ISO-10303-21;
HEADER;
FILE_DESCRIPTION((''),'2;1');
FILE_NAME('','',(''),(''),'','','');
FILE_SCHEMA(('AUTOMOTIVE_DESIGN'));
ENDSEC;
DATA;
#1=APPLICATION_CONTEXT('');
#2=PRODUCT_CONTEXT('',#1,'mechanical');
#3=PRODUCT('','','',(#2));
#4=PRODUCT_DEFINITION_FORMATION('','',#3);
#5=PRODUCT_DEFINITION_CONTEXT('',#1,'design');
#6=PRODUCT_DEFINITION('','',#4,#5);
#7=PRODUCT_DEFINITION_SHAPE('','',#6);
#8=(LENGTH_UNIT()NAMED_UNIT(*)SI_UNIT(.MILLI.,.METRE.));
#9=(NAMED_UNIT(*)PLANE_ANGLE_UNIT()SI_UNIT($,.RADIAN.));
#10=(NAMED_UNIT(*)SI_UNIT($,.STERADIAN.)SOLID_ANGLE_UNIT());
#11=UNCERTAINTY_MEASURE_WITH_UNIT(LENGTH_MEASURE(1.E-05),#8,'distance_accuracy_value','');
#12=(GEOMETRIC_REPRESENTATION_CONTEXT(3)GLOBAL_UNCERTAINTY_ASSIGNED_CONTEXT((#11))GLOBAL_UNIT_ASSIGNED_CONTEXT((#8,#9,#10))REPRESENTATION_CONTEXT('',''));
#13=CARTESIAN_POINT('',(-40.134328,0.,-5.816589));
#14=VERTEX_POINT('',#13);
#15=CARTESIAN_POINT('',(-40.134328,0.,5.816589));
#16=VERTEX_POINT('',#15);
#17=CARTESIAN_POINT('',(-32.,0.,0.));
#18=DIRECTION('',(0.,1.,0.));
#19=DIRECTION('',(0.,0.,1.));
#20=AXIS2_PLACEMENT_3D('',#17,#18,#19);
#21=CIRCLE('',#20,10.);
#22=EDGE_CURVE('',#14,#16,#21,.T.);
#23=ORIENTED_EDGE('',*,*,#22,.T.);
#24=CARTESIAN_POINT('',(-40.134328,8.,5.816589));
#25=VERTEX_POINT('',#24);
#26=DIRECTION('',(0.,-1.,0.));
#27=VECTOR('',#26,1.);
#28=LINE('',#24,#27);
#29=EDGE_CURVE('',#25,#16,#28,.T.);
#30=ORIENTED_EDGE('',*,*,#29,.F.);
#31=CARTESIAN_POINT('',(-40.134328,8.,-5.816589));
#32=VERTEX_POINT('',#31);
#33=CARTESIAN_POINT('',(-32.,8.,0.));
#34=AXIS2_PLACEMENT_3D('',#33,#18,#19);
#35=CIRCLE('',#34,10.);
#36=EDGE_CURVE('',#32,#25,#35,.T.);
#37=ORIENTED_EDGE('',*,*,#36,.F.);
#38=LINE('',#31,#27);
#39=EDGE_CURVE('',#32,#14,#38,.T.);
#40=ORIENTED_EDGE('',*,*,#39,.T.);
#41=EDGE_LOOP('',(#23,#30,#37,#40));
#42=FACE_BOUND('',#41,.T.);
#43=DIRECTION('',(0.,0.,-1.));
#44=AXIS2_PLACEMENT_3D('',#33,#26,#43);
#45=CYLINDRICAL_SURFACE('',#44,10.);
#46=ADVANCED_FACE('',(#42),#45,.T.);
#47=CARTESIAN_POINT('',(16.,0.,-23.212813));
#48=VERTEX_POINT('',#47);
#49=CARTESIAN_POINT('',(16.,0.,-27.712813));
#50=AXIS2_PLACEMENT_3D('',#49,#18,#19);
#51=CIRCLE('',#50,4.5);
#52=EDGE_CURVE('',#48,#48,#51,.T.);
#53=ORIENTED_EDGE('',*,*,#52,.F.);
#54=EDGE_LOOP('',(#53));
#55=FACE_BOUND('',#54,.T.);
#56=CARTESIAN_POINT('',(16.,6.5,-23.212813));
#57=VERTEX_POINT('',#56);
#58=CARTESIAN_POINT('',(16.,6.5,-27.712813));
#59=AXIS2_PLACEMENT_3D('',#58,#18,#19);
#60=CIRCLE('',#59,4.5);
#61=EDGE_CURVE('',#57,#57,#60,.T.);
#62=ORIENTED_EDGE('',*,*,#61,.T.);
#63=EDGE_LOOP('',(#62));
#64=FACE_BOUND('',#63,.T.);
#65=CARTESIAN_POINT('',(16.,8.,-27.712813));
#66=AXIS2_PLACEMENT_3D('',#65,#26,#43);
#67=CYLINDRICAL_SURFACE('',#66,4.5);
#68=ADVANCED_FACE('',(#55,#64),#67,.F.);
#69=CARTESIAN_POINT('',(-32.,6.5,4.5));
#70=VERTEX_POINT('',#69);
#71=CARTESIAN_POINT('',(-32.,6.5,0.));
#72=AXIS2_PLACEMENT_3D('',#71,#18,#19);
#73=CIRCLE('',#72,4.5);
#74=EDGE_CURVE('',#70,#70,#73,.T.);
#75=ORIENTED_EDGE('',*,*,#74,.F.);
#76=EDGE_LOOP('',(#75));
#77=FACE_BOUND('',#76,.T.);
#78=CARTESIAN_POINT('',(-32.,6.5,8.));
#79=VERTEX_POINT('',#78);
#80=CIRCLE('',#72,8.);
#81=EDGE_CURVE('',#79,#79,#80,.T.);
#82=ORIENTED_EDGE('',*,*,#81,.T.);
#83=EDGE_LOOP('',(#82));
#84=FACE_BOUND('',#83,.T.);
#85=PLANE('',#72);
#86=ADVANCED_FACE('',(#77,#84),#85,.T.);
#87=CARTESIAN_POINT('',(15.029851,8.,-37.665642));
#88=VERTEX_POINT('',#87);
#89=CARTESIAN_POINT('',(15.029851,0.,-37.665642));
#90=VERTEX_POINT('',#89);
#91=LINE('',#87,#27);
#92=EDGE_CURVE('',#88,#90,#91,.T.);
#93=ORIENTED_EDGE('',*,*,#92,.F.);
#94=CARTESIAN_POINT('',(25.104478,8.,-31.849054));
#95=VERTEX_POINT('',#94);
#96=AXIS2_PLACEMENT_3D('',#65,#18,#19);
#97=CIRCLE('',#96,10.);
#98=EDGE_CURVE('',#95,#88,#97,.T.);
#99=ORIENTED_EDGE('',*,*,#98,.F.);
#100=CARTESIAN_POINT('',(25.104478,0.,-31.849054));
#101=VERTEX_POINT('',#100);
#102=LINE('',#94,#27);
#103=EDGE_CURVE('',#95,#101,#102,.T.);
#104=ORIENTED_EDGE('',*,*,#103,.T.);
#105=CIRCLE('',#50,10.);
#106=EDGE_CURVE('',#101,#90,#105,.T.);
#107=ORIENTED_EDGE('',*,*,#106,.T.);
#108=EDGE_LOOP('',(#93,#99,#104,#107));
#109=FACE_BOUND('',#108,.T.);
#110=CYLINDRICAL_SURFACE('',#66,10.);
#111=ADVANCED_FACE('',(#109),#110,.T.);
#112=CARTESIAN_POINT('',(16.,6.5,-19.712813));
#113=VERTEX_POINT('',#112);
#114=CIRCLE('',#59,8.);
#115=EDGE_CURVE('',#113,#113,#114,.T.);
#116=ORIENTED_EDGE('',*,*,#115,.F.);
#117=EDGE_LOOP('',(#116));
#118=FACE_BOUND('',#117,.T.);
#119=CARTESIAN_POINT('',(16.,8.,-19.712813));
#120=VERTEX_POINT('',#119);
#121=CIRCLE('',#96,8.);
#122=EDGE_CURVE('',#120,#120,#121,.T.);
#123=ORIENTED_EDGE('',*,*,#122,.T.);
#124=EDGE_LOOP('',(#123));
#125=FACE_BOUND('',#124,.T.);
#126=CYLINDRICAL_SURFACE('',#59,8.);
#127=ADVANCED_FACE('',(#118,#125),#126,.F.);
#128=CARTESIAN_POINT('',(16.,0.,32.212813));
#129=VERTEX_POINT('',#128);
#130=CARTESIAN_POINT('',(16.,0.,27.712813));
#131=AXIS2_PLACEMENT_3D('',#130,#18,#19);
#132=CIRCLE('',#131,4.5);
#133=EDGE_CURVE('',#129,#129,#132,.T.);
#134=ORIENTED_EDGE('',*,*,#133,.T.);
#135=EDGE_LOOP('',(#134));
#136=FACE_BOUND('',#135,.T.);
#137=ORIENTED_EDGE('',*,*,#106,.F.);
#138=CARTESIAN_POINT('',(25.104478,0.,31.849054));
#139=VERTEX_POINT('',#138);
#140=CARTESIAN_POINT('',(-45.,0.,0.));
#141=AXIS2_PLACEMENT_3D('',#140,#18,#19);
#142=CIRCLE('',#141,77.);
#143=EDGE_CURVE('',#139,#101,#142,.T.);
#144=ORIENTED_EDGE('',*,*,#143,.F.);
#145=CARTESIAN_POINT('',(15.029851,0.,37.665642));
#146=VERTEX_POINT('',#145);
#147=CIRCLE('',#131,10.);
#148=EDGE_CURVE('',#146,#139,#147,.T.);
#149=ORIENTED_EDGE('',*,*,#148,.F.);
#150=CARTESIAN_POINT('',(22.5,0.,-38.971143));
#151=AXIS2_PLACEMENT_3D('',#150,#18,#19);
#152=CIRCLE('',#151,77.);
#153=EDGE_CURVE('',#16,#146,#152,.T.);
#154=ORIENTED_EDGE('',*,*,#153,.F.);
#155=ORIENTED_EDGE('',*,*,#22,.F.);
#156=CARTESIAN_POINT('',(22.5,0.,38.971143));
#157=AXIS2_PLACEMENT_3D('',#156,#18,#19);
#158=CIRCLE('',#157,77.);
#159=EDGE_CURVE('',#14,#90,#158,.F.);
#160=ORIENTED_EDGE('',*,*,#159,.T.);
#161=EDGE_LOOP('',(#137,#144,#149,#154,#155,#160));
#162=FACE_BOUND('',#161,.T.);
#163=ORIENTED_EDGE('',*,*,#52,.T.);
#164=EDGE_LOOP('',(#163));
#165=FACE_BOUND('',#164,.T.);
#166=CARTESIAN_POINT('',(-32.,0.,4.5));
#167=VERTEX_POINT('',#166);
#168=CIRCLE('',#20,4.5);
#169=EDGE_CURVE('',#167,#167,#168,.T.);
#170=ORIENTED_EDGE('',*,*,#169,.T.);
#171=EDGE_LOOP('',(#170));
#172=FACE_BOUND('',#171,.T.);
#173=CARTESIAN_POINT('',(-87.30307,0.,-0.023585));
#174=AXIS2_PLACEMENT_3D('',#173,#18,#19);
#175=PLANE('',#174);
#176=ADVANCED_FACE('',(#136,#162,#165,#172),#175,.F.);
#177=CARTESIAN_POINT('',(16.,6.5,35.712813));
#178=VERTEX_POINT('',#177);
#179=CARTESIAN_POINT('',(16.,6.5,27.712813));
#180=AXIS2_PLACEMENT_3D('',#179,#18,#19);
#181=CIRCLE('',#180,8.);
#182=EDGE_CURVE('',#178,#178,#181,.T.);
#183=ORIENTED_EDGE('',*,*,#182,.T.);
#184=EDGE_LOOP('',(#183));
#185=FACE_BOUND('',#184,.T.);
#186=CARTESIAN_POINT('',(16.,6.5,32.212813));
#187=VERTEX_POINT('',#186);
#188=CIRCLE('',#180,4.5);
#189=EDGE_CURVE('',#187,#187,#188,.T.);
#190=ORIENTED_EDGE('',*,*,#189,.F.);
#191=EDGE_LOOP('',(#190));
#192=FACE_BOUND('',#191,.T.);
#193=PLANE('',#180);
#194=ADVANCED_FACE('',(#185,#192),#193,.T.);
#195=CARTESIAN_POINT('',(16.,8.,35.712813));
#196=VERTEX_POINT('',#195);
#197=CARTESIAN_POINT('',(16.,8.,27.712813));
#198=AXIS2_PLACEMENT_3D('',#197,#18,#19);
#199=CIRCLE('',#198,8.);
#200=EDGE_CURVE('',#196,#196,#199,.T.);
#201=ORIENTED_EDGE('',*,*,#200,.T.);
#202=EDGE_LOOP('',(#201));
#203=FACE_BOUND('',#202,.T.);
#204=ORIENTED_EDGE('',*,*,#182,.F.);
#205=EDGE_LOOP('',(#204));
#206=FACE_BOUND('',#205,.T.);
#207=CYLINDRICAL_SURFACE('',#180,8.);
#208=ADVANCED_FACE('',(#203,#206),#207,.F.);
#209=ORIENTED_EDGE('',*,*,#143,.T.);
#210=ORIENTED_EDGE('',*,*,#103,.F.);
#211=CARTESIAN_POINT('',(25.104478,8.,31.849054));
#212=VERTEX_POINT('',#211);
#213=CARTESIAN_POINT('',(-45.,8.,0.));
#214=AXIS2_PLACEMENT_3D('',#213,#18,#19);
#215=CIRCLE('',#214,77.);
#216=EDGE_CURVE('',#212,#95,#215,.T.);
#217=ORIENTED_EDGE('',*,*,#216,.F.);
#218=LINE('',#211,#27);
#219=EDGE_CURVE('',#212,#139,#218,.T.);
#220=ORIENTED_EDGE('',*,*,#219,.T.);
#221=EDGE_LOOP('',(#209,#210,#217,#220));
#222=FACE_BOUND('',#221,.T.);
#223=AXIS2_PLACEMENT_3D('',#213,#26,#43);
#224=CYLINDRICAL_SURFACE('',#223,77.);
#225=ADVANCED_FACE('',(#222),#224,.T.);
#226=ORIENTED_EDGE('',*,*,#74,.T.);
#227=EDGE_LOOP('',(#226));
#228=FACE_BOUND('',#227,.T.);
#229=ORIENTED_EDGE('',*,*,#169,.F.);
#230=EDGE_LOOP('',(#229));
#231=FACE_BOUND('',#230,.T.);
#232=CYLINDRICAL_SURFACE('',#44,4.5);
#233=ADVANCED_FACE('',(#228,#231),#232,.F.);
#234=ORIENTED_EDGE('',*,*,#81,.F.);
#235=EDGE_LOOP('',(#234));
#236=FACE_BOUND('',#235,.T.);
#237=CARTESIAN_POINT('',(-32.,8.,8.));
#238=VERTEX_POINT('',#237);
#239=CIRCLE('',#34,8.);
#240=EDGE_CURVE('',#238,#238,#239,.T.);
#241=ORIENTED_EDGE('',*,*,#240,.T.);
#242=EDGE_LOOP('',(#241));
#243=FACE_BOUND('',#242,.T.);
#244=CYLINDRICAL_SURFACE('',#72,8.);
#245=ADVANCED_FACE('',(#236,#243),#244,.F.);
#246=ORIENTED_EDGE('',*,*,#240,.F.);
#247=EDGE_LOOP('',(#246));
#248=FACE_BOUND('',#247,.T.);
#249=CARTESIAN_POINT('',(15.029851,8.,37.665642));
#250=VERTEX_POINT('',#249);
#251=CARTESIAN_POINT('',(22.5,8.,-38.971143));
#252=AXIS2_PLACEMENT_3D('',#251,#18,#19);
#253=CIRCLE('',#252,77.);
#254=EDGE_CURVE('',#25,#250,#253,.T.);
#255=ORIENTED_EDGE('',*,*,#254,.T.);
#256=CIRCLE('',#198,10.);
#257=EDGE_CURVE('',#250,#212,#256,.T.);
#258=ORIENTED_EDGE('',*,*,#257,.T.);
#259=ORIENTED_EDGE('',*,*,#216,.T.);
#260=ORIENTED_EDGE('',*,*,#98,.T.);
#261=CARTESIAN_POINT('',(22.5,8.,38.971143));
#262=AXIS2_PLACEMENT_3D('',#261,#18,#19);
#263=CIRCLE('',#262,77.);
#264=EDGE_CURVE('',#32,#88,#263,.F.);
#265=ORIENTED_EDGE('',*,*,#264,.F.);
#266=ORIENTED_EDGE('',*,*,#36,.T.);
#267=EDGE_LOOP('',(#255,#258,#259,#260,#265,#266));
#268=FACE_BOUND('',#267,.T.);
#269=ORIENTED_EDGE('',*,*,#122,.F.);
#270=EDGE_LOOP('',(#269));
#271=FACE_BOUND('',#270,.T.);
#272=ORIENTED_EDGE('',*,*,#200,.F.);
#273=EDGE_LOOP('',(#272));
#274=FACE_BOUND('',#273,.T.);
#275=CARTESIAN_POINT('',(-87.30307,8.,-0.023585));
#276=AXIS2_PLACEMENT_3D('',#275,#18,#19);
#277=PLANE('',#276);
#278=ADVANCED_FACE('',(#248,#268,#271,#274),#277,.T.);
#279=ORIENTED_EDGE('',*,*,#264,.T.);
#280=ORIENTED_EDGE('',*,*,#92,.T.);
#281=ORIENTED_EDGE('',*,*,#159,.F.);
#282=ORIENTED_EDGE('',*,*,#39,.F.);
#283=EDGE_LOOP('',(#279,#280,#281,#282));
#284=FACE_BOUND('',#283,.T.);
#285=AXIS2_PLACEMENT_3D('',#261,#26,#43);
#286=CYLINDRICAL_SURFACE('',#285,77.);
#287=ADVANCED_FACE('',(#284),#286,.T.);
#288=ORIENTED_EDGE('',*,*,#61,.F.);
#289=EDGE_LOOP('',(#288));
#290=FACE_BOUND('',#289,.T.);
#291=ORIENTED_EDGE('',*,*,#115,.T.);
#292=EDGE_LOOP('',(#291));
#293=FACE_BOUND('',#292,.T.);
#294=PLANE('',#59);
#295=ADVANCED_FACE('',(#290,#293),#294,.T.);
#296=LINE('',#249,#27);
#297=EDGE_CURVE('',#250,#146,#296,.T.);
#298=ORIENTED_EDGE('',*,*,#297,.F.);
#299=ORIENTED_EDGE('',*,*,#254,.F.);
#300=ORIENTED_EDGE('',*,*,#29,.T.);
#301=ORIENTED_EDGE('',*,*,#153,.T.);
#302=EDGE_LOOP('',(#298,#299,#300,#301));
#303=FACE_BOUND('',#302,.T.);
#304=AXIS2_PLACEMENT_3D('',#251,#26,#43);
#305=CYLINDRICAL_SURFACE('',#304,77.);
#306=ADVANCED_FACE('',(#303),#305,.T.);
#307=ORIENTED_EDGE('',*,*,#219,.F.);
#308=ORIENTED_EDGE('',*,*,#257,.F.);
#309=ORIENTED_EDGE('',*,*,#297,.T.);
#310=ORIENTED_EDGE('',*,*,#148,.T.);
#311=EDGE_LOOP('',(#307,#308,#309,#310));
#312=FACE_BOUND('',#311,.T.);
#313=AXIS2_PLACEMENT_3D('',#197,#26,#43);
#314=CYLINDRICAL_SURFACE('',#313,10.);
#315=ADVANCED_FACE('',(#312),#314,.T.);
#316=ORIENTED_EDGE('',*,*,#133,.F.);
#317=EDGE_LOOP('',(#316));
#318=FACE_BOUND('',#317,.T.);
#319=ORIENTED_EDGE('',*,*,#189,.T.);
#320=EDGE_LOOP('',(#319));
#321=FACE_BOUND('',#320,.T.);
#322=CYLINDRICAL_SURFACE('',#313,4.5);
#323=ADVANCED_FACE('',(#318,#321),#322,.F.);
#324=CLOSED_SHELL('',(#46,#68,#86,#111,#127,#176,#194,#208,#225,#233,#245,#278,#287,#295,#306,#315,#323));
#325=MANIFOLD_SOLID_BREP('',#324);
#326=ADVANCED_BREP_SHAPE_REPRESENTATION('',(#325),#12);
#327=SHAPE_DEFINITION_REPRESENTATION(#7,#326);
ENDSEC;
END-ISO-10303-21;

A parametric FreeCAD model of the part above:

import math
import FreeCAD as App
import Part
import Sketcher

V = App.Vector

doc = App.newDocument("Part")
params = doc.addObject("Spreadsheet::Sheet", "Params")
for row, (alias, value) in enumerate([
    ("sketch1_radius", "10 mm"),
    ("sketch1_radius2", "77 mm"),
    ("pad1_length", "8 mm"),
    ("sketch2_diameter", "20 mm"),
    ("sketch2_diameter2", "9 mm"),
    ("pad2_length", "8 mm"),
    ("sketch3_diameter", "16 mm"),
    ("pocket1_length", "1.5 mm"),
], start=1):
    params.set(f"A{row}", alias)
    params.set(f"B{row}", "=" + value)
    params.setAlias(f"B{row}", alias)

body = doc.addObject("PartDesign::Body", "Body")

sketch1 = body.newObject("Sketcher::SketchObject", "Sketch")
sketch1.AttachmentSupport = (doc.getObject("XZ_Plane"), [""])
sketch1.MapMode = "FlatFace"
sketch1.addGeometry([
    Part.ArcOfCircle(Part.Circle(V(-32, 0, 0), V(0, 0, 1), 10), math.radians(-144), math.radians(0)),
    Part.ArcOfCircle(Part.Circle(V(-32, 0, 0), V(0, 0, 1), 10), math.radians(0), math.radians(144)),
    Part.ArcOfCircle(Part.Circle(V(22.5, -39, 0), V(0, 0, 1), 77), math.radians(96), math.radians(144)),
    Part.ArcOfCircle(Part.Circle(V(16, 27.7, 0), V(0, 0, 1), 10), math.radians(96), math.radians(360)),
    Part.ArcOfCircle(Part.Circle(V(16, 27.7, 0), V(0, 0, 1), 10), math.radians(0), math.radians(24)),
    Part.ArcOfCircle(Part.Circle(V(-45, 0, 0), V(0, 0, 1), 77), math.radians(-24), math.radians(24)),
    Part.ArcOfCircle(Part.Circle(V(16, -27.7, 0), V(0, 0, 1), 10), math.radians(-24), math.radians(0)),
    Part.ArcOfCircle(Part.Circle(V(16, -27.7, 0), V(0, 0, 1), 10), math.radians(0), math.radians(264)),
    Part.ArcOfCircle(Part.Circle(V(22.5, 39, 0), V(0, 0, 1), 77), math.radians(-144), math.radians(-96)),
], False)
sketch1.addConstraint([
    Sketcher.Constraint("Tangent", 0, 2, 1, 1),
    Sketcher.Constraint("Tangent", 1, 2, 2, 2),
    Sketcher.Constraint("Tangent", 2, 1, 3, 1),
    Sketcher.Constraint("Tangent", 3, 2, 4, 1),
    Sketcher.Constraint("Tangent", 4, 2, 5, 2),
    Sketcher.Constraint("Tangent", 5, 1, 6, 1),
    Sketcher.Constraint("Tangent", 6, 2, 7, 1),
    Sketcher.Constraint("Tangent", 7, 2, 8, 2),
    Sketcher.Constraint("Tangent", 8, 1, 0, 1),
    Sketcher.Constraint("Equal", 0, 1),
    Sketcher.Constraint("Equal", 1, 3),
    Sketcher.Constraint("Equal", 3, 4),
    Sketcher.Constraint("Equal", 2, 5),
    Sketcher.Constraint("Equal", 4, 6),
    Sketcher.Constraint("Equal", 6, 7),
    Sketcher.Constraint("Equal", 5, 8),
    Sketcher.Constraint("Symmetric", 3, 3, 6, 3, -1),
    Sketcher.Constraint("PointOnObject", 0, 3, -1),
    Sketcher.Constraint("PointOnObject", 0, 2, -1),
    Sketcher.Constraint("Horizontal", 4, 3, 3, 2),
    Sketcher.Constraint("Horizontal", 7, 3, 6, 2),
    Sketcher.Constraint("Radius", 0, 10.0),
    Sketcher.Constraint("Radius", 2, 77.0),
    Sketcher.Constraint("DistanceX", 0, 3, -1, 1, 32.0),
    Sketcher.Constraint("DistanceX", -1, 1, 3, 3, 16.0),
    Sketcher.Constraint("DistanceX", 5, 3, -1, 1, 45.0),
])
sketch1.setExpression("Constraints[21]", "Params.sketch1_radius")
sketch1.setExpression("Constraints[22]", "Params.sketch1_radius2")
pad1 = body.newObject("PartDesign::Pad", "Pad")
pad1.Profile = sketch1
pad1.setExpression("Length", "Params.pad1_length")
pad1.Reversed = True

sketch2 = body.newObject("Sketcher::SketchObject", "Sketch001")
sketch2.AttachmentSupport = (doc.getObject("XZ_Plane"), [""])
sketch2.MapMode = "FlatFace"
sketch2.addGeometry([
    Part.Circle(V(16, 27.7, 0), V(0, 0, 1), 10),
    Part.Circle(V(16, 27.7, 0), V(0, 0, 1), 4.5),
    Part.Circle(V(16, -27.7, 0), V(0, 0, 1), 10),
    Part.Circle(V(16, -27.7, 0), V(0, 0, 1), 4.5),
    Part.Circle(V(-32, 0, 0), V(0, 0, 1), 10),
    Part.Circle(V(-32, 0, 0), V(0, 0, 1), 4.5),
], False)
sketch2.addConstraint([
    Sketcher.Constraint("Coincident", 1, 3, 0, 3),
    Sketcher.Constraint("Coincident", 3, 3, 2, 3),
    Sketcher.Constraint("Coincident", 5, 3, 4, 3),
    Sketcher.Constraint("Equal", 0, 2),
    Sketcher.Constraint("Equal", 1, 3),
    Sketcher.Constraint("Equal", 2, 4),
    Sketcher.Constraint("Equal", 3, 5),
    Sketcher.Constraint("Symmetric", 0, 3, 2, 3, -1),
    Sketcher.Constraint("PointOnObject", 4, 3, -1),
    Sketcher.Constraint("Diameter", 0, 20.0),
    Sketcher.Constraint("Diameter", 1, 9.0),
    Sketcher.Constraint("DistanceX", -1, 1, 0, 3, 16.0),
    Sketcher.Constraint("DistanceX", 4, 3, -1, 1, 32.0),
    Sketcher.Constraint("DistanceY", -1, 1, 0, 3, 27.712813),
])
sketch2.setExpression("Constraints[9]", "Params.sketch2_diameter")
sketch2.setExpression("Constraints[10]", "Params.sketch2_diameter2")
pad2 = body.newObject("PartDesign::Pad", "Pad001")
pad2.Profile = sketch2
pad2.setExpression("Length", "Params.pad2_length")
pad2.Reversed = True

sketch3 = body.newObject("Sketcher::SketchObject", "Sketch002")
sketch3.AttachmentSupport = (doc.getObject("XZ_Plane"), [""])
sketch3.MapMode = "FlatFace"
sketch3.AttachmentOffset = App.Placement(V(0, 0, -8), App.Rotation())
sketch3.addGeometry([
    Part.Circle(V(-32, 0, 0), V(0, 0, 1), 8),
    Part.Circle(V(16, -28, 0), V(0, 0, 1), 8),
    Part.Circle(V(16, 28, 0), V(0, 0, 1), 8),
], False)
sketch3.addConstraint([
    Sketcher.Constraint("Equal", 0, 1),
    Sketcher.Constraint("Equal", 1, 2),
    Sketcher.Constraint("Symmetric", 1, 3, 2, 3, -1),
    Sketcher.Constraint("PointOnObject", 0, 3, -1),
    Sketcher.Constraint("Diameter", 0, 16.0),
    Sketcher.Constraint("DistanceX", 0, 3, -1, 1, 32.0),
    Sketcher.Constraint("DistanceX", -1, 1, 1, 3, 16.0),
    Sketcher.Constraint("DistanceY", 1, 3, -1, 1, 27.712813),
])
sketch3.setExpression("Constraints[4]", "Params.sketch3_diameter")
pocket1 = body.newObject("PartDesign::Pocket", "Pocket")
pocket1.Profile = sketch3
pocket1.setExpression("Length", "Params.pocket1_length")
pocket1.Reversed = True

doc.recompute()
